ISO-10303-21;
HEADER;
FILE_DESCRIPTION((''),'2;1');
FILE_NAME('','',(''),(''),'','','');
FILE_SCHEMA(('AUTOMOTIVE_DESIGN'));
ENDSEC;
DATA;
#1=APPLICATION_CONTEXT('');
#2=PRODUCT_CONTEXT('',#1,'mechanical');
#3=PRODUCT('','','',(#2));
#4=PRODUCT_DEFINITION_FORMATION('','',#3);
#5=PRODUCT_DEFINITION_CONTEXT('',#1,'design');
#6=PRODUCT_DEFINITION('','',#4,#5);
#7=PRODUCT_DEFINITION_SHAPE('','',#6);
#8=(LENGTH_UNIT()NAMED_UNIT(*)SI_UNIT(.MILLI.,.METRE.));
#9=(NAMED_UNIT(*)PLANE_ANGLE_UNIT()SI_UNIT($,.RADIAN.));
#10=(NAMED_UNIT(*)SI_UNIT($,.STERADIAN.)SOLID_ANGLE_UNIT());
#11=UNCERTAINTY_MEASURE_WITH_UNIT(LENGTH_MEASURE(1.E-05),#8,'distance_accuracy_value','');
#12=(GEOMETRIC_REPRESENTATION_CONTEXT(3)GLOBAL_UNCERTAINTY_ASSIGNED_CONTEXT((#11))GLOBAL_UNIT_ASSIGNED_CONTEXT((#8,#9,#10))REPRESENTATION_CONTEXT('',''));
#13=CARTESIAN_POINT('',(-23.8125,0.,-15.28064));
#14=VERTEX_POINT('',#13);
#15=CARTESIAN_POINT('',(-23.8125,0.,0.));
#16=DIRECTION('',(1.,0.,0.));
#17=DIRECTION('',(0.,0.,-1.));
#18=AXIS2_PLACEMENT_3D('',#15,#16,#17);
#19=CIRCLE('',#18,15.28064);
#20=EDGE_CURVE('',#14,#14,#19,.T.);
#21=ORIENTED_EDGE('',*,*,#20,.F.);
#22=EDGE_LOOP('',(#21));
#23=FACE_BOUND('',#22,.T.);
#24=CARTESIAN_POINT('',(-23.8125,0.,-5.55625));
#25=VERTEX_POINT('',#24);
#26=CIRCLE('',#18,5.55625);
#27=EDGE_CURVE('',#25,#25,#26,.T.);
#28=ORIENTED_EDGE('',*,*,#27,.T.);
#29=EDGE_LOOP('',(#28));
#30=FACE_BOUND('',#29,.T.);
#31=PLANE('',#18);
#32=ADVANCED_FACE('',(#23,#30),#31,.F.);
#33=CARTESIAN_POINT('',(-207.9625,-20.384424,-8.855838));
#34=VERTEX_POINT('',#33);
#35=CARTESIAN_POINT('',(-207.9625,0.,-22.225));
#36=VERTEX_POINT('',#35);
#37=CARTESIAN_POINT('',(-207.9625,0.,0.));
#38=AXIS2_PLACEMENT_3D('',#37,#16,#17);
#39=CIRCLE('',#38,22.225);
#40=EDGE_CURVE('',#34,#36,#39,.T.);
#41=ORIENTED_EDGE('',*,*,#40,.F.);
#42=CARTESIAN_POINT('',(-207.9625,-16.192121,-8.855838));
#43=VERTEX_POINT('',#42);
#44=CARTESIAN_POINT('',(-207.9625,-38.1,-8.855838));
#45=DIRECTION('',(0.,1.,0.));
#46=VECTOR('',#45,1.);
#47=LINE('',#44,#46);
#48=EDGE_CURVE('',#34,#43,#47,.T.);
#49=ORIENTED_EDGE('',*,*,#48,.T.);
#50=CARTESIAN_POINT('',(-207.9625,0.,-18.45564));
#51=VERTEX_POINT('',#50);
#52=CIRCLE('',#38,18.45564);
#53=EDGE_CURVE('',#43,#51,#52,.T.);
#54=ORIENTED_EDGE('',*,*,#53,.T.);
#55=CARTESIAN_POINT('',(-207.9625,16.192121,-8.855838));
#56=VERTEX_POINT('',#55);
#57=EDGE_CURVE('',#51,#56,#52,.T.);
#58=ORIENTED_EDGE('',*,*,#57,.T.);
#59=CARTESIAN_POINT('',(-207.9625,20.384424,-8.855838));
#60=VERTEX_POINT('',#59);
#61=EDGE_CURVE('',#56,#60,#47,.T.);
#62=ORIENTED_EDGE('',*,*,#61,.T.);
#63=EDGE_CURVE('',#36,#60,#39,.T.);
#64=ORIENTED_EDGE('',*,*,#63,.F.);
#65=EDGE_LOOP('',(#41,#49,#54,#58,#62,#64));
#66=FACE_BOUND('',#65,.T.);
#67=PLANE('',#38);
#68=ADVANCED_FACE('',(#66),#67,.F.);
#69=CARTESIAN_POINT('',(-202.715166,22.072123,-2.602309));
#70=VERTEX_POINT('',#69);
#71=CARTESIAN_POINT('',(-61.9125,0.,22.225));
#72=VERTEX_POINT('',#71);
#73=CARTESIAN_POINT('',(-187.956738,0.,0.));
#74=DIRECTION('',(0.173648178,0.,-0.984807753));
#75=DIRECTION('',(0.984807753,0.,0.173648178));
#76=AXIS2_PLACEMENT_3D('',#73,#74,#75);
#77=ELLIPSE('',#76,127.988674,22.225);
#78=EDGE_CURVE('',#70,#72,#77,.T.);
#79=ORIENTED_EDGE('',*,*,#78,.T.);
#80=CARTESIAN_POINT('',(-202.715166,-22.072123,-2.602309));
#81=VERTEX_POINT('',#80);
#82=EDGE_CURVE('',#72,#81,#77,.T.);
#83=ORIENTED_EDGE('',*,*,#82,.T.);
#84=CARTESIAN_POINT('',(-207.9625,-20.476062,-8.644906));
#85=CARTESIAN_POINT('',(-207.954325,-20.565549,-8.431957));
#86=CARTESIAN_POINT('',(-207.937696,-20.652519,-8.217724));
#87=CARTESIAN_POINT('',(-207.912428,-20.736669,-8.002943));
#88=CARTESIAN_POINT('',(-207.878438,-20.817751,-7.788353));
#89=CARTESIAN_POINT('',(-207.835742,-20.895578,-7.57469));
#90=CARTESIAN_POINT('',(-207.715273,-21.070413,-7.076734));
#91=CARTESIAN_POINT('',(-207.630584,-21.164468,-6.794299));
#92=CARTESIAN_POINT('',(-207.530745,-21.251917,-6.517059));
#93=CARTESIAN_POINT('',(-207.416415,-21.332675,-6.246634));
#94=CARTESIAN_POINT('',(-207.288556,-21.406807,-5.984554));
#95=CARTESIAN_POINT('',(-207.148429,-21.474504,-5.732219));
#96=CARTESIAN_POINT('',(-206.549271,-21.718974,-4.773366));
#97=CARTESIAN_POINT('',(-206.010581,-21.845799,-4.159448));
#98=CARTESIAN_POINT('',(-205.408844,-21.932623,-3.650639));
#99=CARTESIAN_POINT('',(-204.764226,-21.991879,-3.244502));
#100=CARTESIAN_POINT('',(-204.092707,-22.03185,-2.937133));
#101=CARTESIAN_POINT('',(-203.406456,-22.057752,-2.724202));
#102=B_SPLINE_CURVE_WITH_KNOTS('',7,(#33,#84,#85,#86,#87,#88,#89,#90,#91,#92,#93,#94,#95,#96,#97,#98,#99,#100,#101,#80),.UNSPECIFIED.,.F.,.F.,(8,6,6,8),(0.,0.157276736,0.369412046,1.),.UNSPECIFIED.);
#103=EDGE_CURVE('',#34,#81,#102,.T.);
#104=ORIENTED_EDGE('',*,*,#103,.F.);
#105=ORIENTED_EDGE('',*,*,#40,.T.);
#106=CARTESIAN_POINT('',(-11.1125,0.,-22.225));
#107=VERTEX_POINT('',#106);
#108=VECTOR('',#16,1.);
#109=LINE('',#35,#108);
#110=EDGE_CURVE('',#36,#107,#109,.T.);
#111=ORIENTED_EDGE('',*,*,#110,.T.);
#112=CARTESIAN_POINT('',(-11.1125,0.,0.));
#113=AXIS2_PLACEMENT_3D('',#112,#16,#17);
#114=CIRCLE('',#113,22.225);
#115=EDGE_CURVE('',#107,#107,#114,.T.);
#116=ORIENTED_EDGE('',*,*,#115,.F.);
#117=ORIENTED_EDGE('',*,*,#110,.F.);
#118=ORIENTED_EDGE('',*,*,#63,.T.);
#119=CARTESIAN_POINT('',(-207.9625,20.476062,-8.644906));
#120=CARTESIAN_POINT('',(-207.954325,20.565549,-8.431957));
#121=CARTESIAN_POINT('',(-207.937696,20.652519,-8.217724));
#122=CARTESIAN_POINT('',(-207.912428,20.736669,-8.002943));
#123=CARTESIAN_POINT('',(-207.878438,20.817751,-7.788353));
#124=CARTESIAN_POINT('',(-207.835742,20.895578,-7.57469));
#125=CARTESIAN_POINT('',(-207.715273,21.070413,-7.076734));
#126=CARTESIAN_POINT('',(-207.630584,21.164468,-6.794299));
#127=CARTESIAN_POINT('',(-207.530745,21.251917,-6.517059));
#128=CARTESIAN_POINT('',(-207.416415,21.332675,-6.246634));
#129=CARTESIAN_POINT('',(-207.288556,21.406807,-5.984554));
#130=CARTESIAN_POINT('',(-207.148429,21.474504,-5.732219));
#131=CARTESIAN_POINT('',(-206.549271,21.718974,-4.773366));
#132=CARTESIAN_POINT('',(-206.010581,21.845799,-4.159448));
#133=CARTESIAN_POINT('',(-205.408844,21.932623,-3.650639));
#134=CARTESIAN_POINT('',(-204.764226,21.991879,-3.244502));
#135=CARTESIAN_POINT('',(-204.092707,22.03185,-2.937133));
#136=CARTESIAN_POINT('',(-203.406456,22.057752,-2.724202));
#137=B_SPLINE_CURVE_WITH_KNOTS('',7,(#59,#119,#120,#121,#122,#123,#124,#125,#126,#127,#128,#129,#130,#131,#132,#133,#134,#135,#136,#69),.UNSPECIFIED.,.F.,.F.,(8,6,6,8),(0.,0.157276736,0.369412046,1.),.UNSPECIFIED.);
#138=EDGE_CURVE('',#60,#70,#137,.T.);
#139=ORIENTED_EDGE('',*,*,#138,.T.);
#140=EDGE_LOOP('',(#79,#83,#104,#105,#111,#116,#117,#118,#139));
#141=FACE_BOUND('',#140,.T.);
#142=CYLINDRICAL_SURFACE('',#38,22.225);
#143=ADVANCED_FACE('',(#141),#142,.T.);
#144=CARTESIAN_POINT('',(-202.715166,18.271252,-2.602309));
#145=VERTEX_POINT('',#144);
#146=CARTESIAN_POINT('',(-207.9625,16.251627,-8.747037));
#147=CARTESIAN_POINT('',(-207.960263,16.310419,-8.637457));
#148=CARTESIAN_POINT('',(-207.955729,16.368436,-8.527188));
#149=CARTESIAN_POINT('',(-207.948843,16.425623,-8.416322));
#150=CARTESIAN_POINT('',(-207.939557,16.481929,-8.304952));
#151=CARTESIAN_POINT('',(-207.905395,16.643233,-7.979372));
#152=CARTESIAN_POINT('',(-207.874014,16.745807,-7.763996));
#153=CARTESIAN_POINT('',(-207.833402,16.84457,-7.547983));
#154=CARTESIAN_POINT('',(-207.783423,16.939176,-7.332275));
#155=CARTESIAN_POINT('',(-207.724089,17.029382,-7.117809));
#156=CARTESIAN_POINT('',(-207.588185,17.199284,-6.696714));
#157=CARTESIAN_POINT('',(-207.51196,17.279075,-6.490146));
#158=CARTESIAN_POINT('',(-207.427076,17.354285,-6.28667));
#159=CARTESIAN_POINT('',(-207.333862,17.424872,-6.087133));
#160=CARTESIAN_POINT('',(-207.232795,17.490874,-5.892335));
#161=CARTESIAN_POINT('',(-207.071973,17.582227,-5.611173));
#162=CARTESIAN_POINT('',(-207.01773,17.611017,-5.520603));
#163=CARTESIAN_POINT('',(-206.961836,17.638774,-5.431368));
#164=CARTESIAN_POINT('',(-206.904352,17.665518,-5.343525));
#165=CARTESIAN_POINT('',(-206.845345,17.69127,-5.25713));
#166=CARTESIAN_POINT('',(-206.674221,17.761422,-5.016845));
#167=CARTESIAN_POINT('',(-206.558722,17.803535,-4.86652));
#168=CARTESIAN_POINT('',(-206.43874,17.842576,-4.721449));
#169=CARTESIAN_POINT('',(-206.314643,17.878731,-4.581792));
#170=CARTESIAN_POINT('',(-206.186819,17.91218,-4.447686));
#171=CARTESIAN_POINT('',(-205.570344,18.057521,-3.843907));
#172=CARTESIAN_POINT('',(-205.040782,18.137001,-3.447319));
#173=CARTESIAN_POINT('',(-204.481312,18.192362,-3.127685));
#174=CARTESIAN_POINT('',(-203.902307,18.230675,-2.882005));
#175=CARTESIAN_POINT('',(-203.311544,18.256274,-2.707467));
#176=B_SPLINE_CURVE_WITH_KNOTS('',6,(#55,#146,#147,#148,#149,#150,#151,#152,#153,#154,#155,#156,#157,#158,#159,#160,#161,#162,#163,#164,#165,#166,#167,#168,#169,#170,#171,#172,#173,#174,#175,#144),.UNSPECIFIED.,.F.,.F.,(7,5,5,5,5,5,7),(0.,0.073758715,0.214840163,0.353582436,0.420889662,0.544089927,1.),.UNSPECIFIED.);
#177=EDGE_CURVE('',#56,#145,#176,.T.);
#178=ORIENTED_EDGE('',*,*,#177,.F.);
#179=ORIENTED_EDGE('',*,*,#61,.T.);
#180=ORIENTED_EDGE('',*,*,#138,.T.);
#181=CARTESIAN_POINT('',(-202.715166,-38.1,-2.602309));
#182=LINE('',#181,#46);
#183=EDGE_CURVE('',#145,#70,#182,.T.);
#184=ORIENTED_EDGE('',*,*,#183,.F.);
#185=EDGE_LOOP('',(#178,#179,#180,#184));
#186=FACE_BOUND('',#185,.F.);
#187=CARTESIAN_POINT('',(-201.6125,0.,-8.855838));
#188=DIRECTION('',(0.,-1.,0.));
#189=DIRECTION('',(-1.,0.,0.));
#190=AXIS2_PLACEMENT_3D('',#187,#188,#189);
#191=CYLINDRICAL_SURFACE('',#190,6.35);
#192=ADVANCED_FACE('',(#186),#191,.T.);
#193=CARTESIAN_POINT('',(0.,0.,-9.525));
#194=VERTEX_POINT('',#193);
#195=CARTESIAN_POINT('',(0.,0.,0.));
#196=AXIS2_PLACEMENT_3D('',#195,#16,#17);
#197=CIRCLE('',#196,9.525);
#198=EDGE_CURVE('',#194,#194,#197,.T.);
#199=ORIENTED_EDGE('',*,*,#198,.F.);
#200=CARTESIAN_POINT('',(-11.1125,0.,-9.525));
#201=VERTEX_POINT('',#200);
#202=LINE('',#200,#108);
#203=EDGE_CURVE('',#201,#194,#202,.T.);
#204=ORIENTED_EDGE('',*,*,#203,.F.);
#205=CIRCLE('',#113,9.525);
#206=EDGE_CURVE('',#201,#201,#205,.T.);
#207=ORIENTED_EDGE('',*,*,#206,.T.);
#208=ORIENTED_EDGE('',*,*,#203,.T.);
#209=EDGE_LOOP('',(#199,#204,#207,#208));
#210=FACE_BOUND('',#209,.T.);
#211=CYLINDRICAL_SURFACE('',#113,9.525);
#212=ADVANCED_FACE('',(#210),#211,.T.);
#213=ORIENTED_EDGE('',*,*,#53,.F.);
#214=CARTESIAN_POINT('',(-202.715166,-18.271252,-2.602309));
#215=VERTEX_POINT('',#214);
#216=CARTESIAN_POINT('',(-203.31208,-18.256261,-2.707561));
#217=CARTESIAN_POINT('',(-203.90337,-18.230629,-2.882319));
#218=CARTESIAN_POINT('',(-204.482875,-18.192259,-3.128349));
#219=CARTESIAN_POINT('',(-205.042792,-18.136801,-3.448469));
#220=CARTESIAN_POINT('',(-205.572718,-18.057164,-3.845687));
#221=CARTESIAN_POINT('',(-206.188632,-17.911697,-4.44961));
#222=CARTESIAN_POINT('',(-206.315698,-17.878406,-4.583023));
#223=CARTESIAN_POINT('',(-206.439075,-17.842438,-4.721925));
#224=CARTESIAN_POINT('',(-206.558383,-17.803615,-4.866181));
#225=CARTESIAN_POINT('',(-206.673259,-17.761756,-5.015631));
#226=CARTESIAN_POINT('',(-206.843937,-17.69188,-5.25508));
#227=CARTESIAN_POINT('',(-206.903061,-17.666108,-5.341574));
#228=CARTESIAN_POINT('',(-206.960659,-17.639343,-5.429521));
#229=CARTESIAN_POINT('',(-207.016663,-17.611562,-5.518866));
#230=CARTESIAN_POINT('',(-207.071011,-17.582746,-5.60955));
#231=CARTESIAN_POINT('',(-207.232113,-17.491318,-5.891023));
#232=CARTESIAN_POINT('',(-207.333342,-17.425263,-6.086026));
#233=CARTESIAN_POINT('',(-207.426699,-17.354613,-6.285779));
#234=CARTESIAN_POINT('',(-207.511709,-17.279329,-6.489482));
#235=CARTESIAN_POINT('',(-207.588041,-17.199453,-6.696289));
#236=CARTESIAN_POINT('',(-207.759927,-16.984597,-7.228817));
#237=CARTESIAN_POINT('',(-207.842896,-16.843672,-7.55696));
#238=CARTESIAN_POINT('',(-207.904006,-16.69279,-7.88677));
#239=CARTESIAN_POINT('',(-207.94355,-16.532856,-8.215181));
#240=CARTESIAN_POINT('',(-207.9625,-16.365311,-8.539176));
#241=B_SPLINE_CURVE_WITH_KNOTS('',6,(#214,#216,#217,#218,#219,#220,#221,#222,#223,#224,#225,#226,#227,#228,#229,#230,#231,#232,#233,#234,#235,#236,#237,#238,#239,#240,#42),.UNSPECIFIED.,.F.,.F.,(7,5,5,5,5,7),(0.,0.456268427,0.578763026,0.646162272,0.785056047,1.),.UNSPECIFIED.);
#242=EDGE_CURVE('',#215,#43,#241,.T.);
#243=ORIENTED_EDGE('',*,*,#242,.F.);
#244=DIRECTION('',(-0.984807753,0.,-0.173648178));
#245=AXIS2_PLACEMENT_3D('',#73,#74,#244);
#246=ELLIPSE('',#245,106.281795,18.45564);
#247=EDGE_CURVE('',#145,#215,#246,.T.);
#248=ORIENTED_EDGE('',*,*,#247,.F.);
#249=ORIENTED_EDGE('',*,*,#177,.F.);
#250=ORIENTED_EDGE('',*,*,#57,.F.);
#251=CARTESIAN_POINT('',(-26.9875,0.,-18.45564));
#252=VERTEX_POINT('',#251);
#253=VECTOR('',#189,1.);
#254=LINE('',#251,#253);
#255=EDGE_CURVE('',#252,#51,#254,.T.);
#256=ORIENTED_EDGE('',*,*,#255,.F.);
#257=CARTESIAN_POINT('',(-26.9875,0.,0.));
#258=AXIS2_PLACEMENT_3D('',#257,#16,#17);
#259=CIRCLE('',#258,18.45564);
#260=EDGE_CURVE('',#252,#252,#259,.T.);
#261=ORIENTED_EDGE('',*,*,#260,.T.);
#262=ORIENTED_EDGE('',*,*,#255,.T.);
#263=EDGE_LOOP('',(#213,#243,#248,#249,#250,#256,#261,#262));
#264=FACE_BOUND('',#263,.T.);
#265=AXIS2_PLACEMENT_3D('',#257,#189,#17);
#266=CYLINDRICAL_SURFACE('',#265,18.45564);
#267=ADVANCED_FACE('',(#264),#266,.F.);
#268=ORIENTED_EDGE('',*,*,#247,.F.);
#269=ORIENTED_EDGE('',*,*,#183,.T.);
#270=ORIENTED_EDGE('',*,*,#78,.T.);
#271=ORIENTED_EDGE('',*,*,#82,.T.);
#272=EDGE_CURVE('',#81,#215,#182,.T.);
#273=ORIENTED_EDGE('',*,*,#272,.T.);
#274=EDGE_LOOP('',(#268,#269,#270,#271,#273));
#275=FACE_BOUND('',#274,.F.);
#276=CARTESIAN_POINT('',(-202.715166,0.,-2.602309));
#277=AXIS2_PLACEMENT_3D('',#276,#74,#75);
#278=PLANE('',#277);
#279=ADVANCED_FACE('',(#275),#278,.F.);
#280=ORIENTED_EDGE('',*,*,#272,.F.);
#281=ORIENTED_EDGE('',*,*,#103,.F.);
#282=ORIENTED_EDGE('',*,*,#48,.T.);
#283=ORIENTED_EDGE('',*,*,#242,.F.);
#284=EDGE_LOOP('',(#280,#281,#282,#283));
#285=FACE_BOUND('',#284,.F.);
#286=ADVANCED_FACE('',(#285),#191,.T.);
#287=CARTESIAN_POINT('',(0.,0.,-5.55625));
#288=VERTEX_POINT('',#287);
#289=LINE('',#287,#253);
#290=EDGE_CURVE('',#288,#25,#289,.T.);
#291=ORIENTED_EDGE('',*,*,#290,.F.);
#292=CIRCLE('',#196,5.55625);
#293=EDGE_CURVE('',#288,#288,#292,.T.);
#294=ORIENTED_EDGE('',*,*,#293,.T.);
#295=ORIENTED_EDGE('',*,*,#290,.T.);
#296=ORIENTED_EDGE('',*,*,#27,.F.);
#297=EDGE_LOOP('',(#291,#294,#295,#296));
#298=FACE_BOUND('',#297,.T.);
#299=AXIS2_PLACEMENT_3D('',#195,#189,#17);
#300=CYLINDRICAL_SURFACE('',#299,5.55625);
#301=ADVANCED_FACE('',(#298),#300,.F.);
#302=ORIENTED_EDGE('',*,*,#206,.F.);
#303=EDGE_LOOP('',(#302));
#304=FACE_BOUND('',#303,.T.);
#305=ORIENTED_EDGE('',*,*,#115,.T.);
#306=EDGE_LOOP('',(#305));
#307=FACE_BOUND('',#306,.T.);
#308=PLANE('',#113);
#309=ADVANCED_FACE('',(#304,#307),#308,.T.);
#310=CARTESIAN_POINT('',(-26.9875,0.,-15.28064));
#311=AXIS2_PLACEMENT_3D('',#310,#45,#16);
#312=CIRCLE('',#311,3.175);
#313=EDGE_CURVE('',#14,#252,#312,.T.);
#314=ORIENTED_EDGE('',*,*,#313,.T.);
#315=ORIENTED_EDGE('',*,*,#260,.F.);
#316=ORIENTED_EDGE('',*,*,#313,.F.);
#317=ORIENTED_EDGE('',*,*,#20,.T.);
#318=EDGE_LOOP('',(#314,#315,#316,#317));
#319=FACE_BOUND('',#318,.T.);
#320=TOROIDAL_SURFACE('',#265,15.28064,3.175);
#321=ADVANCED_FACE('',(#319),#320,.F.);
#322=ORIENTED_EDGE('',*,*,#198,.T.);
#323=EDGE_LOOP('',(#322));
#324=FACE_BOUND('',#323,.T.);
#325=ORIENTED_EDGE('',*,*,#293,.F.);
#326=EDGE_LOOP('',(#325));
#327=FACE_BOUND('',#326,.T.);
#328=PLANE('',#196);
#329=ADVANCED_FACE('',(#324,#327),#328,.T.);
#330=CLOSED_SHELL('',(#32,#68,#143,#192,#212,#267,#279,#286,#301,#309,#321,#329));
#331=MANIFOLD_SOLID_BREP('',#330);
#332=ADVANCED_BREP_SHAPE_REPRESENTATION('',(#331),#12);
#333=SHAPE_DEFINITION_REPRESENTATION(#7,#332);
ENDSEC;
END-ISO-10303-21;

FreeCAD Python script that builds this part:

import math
import FreeCAD as App
import Part
import Sketcher
from FreeCAD import Vector
Q = App.Units.Quantity

doc = App.newDocument("Part")
body = doc.addObject("PartDesign::Body", "Body")

sketch1 = body.newObject("Sketcher::SketchObject", "Sketch")
sketch1.AttachmentSupport = (doc.getObject("XZ_Plane"), [""])
sketch1.MapMode = "FlatFace"
sketch1.addGeometry([
    Part.LineSegment(Vector(-11.1125, -9.525, 0), Vector(0, -9.525, 0)),
    Part.LineSegment(Vector(0, -9.525, 0), Vector(0, -5.55625, 0)),
    Part.LineSegment(Vector(0, -5.55625, 0), Vector(-23.8125, -5.55625, 0)),
    Part.LineSegment(Vector(-23.8125, -5.55625, 0), Vector(-23.8125, -15.28064, 0)),
    Part.ArcOfCircle(Part.Circle(Vector(-26.9875, -15.28064, 0), Vector(0, 0, 1), 3.175), math.radians(-90), math.radians(0)),
    Part.LineSegment(Vector(-26.9875, -18.45564, 0), Vector(-207.9625, -18.45564, 0)),
    Part.LineSegment(Vector(-207.9625, -18.45564, 0), Vector(-207.9625, -22.225, 0)),
    Part.LineSegment(Vector(-207.9625, -22.225, 0), Vector(-11.1125, -22.225, 0)),
    Part.LineSegment(Vector(-11.1125, -22.225, 0), Vector(-11.1125, -9.525, 0)),
], False)
sketch1.addConstraint([
    Sketcher.Constraint("Coincident", 0, 2, 1, 1),
    Sketcher.Constraint("Coincident", 1, 2, 2, 1),
    Sketcher.Constraint("Coincident", 2, 2, 3, 1),
    Sketcher.Constraint("Tangent", 3, 2, 4, 2),
    Sketcher.Constraint("Tangent", 4, 1, 5, 1),
    Sketcher.Constraint("Coincident", 5, 2, 6, 1),
    Sketcher.Constraint("Coincident", 6, 2, 7, 1),
    Sketcher.Constraint("Coincident", 7, 2, 8, 1),
    Sketcher.Constraint("Coincident", 8, 2, 0, 1),
    Sketcher.Constraint("Horizontal", 0),
    Sketcher.Constraint("Vertical", 1),
    Sketcher.Constraint("Horizontal", 2),
    Sketcher.Constraint("Vertical", 3),
    Sketcher.Constraint("Horizontal", 5),
    Sketcher.Constraint("Vertical", 6),
    Sketcher.Constraint("Horizontal", 7),
    Sketcher.Constraint("Vertical", 8),
    Sketcher.Constraint("PointOnObject", 0, 2, -2),
    Sketcher.Constraint("DistanceY", 8, 1, 8, 2, Q("0.5 in")),
    Sketcher.Constraint("Radius", 4, Q("0.125 in")),
    Sketcher.Constraint("DistanceX", 7, 1, 7, 2, Q("7.75 in")),
    Sketcher.Constraint("DistanceX", 3, 2, 7, 2, Q("0.5 in")),
    Sketcher.Constraint("DistanceX", 0, 1, 0, 2, Q("0.4375 in")),
    Sketcher.Constraint("DistanceY", 1, 1, 1, 2, Q("0.15625 in")),
    Sketcher.Constraint("DistanceY", 6, 2, 6, 1, Q("0.1484 in")),
    Sketcher.Constraint("DistanceY", 0, 2, -1, 1, Q("0.375 in")),
])
revolution = body.newObject("PartDesign::Revolution", "Revolution")
revolution.Profile = sketch1
revolution.ReferenceAxis = (sketch1, ["H_Axis"])
revolution.Angle = 360

sketch2 = body.newObject("Sketcher::SketchObject", "Sketch001")
sketch2.AttachmentSupport = (doc.getObject("XZ_Plane"), [""])
sketch2.MapMode = "FlatFace"
sketch2.addGeometry([
    Part.LineSegment(Vector(-61.9125, 22.225, 0), Vector(-214.3125, 22.225, 0)),
    Part.LineSegment(Vector(-214.3125, 22.225, 0), Vector(-214.3125, -22.225, 0)),
    Part.LineSegment(Vector(-214.3125, -22.225, 0), Vector(-207.9625, -22.225, 0)),
    Part.LineSegment(Vector(-207.9625, -22.225, 0), Vector(-207.9625, -8.855838, 0)),
    Part.ArcOfCircle(Part.Circle(Vector(-201.6125, -8.855838, 0), Vector(0, 0, 1), 6.35), math.radians(100), math.radians(180)),
    Part.LineSegment(Vector(-202.715166, -2.602309, 0), Vector(-61.9125, 22.225, 0)),
], False)
sketch2.addConstraint([
    Sketcher.Constraint("Coincident", 0, 2, 1, 1),
    Sketcher.Constraint("Coincident", 1, 2, 2, 1),
    Sketcher.Constraint("Coincident", 2, 2, 3, 1),
    Sketcher.Constraint("Tangent", 3, 2, 4, 2),
    Sketcher.Constraint("Tangent", 4, 1, 5, 1),
    Sketcher.Constraint("Coincident", 5, 2, 0, 1),
    Sketcher.Constraint("Horizontal", 0),
    Sketcher.Constraint("Vertical", 1),
    Sketcher.Constraint("Horizontal", 2),
    Sketcher.Constraint("Vertical", 3),
    Sketcher.Constraint("DistanceX", 0, 2, 0, 1, Q("6 in")),
    Sketcher.Constraint("Radius", 4, Q("0.25 in")),
    Sketcher.Constraint("Angle", 5, Q("10 deg")),
    Sketcher.Constraint("DistanceX", 2, 1, 2, 2, Q("0.25 in")),
    Sketcher.Constraint("DistanceY", 1, 2, 1, 1, Q("1.75 in")),
    Sketcher.Constraint("DistanceX", 4, 3, -1, 1, Q("7.9375 in")),
    Sketcher.Constraint("DistanceY", -1, 1, 0, 2, Q("0.875 in")),
])
pocket1 = body.newObject("PartDesign::Pocket", "Pocket")
pocket1.Profile = sketch2
pocket1.Length = Q("3 in")
pocket1.Midplane = True

doc.recompute()
